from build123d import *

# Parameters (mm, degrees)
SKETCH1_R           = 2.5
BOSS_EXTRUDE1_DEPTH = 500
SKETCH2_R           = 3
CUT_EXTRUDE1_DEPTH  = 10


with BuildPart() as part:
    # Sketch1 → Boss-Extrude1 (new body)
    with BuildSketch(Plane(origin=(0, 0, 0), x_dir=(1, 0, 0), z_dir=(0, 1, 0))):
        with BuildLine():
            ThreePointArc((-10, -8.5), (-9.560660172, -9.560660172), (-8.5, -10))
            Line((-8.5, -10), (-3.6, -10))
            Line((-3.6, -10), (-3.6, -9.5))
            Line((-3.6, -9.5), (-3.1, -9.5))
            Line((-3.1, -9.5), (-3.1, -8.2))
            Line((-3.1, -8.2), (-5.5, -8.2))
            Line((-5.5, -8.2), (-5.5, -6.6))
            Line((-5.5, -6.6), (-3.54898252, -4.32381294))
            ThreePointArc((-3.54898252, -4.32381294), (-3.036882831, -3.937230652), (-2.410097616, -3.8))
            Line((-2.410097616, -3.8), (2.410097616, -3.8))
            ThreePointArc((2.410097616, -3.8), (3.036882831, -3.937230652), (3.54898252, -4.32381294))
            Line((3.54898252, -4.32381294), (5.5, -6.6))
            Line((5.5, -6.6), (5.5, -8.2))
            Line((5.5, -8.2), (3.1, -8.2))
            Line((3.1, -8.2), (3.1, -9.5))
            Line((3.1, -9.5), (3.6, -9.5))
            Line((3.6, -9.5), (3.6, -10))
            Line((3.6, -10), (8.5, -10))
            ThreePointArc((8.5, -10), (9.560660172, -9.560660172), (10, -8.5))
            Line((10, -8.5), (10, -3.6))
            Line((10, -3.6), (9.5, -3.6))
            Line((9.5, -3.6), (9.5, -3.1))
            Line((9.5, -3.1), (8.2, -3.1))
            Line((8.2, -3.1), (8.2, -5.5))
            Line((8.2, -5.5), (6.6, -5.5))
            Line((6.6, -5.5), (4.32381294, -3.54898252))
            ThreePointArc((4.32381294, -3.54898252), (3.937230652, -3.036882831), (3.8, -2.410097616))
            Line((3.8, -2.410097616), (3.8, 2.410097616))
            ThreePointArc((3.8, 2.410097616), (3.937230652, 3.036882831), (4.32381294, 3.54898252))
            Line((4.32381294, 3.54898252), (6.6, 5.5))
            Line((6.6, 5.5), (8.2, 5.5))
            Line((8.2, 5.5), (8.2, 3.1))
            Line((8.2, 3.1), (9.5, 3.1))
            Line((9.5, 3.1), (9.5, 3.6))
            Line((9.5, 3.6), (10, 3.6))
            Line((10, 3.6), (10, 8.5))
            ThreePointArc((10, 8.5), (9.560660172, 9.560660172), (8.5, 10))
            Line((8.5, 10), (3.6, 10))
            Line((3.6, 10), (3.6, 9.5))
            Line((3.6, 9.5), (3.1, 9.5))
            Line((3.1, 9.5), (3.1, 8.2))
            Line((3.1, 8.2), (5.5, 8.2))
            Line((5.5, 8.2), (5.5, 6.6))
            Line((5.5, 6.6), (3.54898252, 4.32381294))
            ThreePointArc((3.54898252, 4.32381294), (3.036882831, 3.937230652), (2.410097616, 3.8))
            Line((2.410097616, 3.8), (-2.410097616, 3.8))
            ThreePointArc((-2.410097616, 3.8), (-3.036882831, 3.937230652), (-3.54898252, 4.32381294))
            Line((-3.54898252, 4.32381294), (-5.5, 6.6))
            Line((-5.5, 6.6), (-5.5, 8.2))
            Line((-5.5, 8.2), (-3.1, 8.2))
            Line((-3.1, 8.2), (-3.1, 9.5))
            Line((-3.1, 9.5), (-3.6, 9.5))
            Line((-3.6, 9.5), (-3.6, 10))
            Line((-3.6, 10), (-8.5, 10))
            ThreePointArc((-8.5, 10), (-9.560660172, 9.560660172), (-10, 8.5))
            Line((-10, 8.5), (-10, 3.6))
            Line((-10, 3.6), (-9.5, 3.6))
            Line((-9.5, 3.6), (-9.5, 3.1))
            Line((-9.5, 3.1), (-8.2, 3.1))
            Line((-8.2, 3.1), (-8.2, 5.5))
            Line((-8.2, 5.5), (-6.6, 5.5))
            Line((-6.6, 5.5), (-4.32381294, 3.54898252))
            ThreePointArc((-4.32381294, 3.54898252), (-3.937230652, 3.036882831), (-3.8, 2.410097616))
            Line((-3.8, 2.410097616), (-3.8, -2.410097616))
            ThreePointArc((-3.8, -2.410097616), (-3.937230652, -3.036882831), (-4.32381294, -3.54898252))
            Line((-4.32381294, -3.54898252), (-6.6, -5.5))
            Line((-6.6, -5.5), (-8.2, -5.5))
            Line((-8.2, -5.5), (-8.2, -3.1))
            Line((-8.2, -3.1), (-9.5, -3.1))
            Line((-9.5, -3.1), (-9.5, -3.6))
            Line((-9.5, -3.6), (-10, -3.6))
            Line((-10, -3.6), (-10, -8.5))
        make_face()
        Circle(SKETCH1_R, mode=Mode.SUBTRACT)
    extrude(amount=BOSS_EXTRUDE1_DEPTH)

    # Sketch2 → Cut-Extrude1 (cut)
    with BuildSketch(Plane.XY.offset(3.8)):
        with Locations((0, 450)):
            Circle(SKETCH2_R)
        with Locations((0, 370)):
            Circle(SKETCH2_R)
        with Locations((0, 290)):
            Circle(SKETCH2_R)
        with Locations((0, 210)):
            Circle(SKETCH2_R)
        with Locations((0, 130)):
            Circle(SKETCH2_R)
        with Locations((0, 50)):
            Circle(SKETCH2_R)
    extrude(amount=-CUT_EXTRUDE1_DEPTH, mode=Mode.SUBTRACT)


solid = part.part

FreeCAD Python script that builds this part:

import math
import FreeCAD as App
import Part
import Sketcher

doc = App.newDocument("Part")
body = doc.addObject("PartDesign::Body", "Body")

# Sketch on XZ plane
sketch1 = body.newObject("Sketcher::SketchObject", "Sketch")
sketch1.AttachmentSupport = (doc.getObject("XZ_Plane"), [""])
sketch1.MapMode = "FlatFace"
sketch1.addGeometry([
    Part.ArcOfCircle(Part.Circle(App.Vector(-8.5, 8.5, 0), App.Vector(0, 0, 1), 1.5), math.radians(90), math.radians(180)),  # 0
    Part.LineSegment(App.Vector(-8.5, 10, 0), App.Vector(-3.6, 10, 0)),  # 1
    Part.LineSegment(App.Vector(-3.6, 10, 0), App.Vector(-3.6, 9.5, 0)),  # 2
    Part.LineSegment(App.Vector(-3.6, 9.5, 0), App.Vector(-3.1, 9.5, 0)),  # 3
    Part.LineSegment(App.Vector(-3.1, 9.5, 0), App.Vector(-3.1, 8.2, 0)),  # 4
    Part.LineSegment(App.Vector(-3.1, 8.2, 0), App.Vector(-5.5, 8.2, 0)),  # 5
    Part.LineSegment(App.Vector(-5.5, 8.2, 0), App.Vector(-5.5, 6.6, 0)),  # 6
    Part.LineSegment(App.Vector(-5.5, 6.6, 0), App.Vector(-3.5, 4.3, 0)),  # 7
    Part.ArcOfCircle(Part.Circle(App.Vector(-2.4, 5.3, 0), App.Vector(0, 0, 1), 1.5), math.radians(-139), math.radians(-90)),  # 8
    Part.LineSegment(App.Vector(-2.4, 3.8, 0), App.Vector(2.4, 3.8, 0)),  # 9
    Part.ArcOfCircle(Part.Circle(App.Vector(2.4, 5.3, 0), App.Vector(0, 0, 1), 1.5), math.radians(-90), math.radians(-41)),  # 10
    Part.LineSegment(App.Vector(3.5, 4.3, 0), App.Vector(5.5, 6.6, 0)),  # 11
    Part.LineSegment(App.Vector(5.5, 6.6, 0), App.Vector(5.5, 8.2, 0)),  # 12
    Part.LineSegment(App.Vector(5.5, 8.2, 0), App.Vector(3.1, 8.2, 0)),  # 13
    Part.LineSegment(App.Vector(3.1, 8.2, 0), App.Vector(3.1, 9.5, 0)),  # 14
    Part.LineSegment(App.Vector(3.1, 9.5, 0), App.Vector(3.6, 9.5, 0)),  # 15
    Part.LineSegment(App.Vector(3.6, 9.5, 0), App.Vector(3.6, 10, 0)),  # 16
    Part.LineSegment(App.Vector(3.6, 10, 0), App.Vector(8.5, 10, 0)),  # 17
    Part.ArcOfCircle(Part.Circle(App.Vector(8.5, 8.5, 0), App.Vector(0, 0, 1), 1.5), math.radians(0), math.radians(90)),  # 18
    Part.LineSegment(App.Vector(10, 8.5, 0), App.Vector(10, 3.6, 0)),  # 19
    Part.LineSegment(App.Vector(10, 3.6, 0), App.Vector(9.5, 3.6, 0)),  # 20
    Part.LineSegment(App.Vector(9.5, 3.6, 0), App.Vector(9.5, 3.1, 0)),  # 21
    Part.LineSegment(App.Vector(9.5, 3.1, 0), App.Vector(8.2, 3.1, 0)),  # 22
    Part.LineSegment(App.Vector(8.2, 3.1, 0), App.Vector(8.2, 5.5, 0)),  # 23
    Part.LineSegment(App.Vector(8.2, 5.5, 0), App.Vector(6.6, 5.5, 0)),  # 24
    Part.LineSegment(App.Vector(6.6, 5.5, 0), App.Vector(4.3, 3.5, 0)),  # 25
    Part.ArcOfCircle(Part.Circle(App.Vector(5.3, 2.4, 0), App.Vector(0, 0, 1), 1.5), math.radians(131), math.radians(180)),  # 26
    Part.LineSegment(App.Vector(3.8, 2.4, 0), App.Vector(3.8, -2.4, 0)),  # 27
    Part.ArcOfCircle(Part.Circle(App.Vector(5.3, -2.4, 0), App.Vector(0, 0, 1), 1.5), math.radians(180), math.radians(229)),  # 28
    Part.LineSegment(App.Vector(4.3, -3.5, 0), App.Vector(6.6, -5.5, 0)),  # 29
    Part.LineSegment(App.Vector(6.6, -5.5, 0), App.Vector(8.2, -5.5, 0)),  # 30
    Part.LineSegment(App.Vector(8.2, -5.5, 0), App.Vector(8.2, -3.1, 0)),  # 31
    Part.LineSegment(App.Vector(8.2, -3.1, 0), App.Vector(9.5, -3.1, 0)),  # 32
    Part.LineSegment(App.Vector(9.5, -3.1, 0), App.Vector(9.5, -3.6, 0)),  # 33
    Part.LineSegment(App.Vector(9.5, -3.6, 0), App.Vector(10, -3.6, 0)),  # 34
    Part.LineSegment(App.Vector(10, -3.6, 0), App.Vector(10, -8.5, 0)),  # 35
    Part.ArcOfCircle(Part.Circle(App.Vector(8.5, -8.5, 0), App.Vector(0, 0, 1), 1.5), math.radians(-90), math.radians(0)),  # 36
    Part.LineSegment(App.Vector(8.5, -10, 0), App.Vector(3.6, -10, 0)),  # 37
    Part.LineSegment(App.Vector(3.6, -10, 0), App.Vector(3.6, -9.5, 0)),  # 38
    Part.LineSegment(App.Vector(3.6, -9.5, 0), App.Vector(3.1, -9.5, 0)),  # 39
    Part.LineSegment(App.Vector(3.1, -9.5, 0), App.Vector(3.1, -8.2, 0)),  # 40
    Part.LineSegment(App.Vector(3.1, -8.2, 0), App.Vector(5.5, -8.2, 0)),  # 41
    Part.LineSegment(App.Vector(5.5, -8.2, 0), App.Vector(5.5, -6.6, 0)),  # 42
    Part.LineSegment(App.Vector(5.5, -6.6, 0), App.Vector(3.5, -4.3, 0)),  # 43
    Part.ArcOfCircle(Part.Circle(App.Vector(2.4, -5.3, 0), App.Vector(0, 0, 1), 1.5), math.radians(41), math.radians(90)),  # 44
    Part.LineSegment(App.Vector(2.4, -3.8, 0), App.Vector(-2.4, -3.8, 0)),  # 45
    Part.ArcOfCircle(Part.Circle(App.Vector(-2.4, -5.3, 0), App.Vector(0, 0, 1), 1.5), math.radians(90), math.radians(139)),  # 46
    Part.LineSegment(App.Vector(-3.5, -4.3, 0), App.Vector(-5.5, -6.6, 0)),  # 47
    Part.LineSegment(App.Vector(-5.5, -6.6, 0), App.Vector(-5.5, -8.2, 0)),  # 48
    Part.LineSegment(App.Vector(-5.5, -8.2, 0), App.Vector(-3.1, -8.2, 0)),  # 49
    Part.LineSegment(App.Vector(-3.1, -8.2, 0), App.Vector(-3.1, -9.5, 0)),  # 50
    Part.LineSegment(App.Vector(-3.1, -9.5, 0), App.Vector(-3.6, -9.5, 0)),  # 51
    Part.LineSegment(App.Vector(-3.6, -9.5, 0), App.Vector(-3.6, -10, 0)),  # 52
    Part.LineSegment(App.Vector(-3.6, -10, 0), App.Vector(-8.5, -10, 0)),  # 53
    Part.ArcOfCircle(Part.Circle(App.Vector(-8.5, -8.5, 0), App.Vector(0, 0, 1), 1.5), math.radians(180), math.radians(270)),  # 54
    Part.LineSegment(App.Vector(-10, -8.5, 0), App.Vector(-10, -3.6, 0)),  # 55
    Part.LineSegment(App.Vector(-10, -3.6, 0), App.Vector(-9.5, -3.6, 0)),  # 56
    Part.LineSegment(App.Vector(-9.5, -3.6, 0), App.Vector(-9.5, -3.1, 0)),  # 57
    Part.LineSegment(App.Vector(-9.5, -3.1, 0), App.Vector(-8.2, -3.1, 0)),  # 58
    Part.LineSegment(App.Vector(-8.2, -3.1, 0), App.Vector(-8.2, -5.5, 0)),  # 59
    Part.LineSegment(App.Vector(-8.2, -5.5, 0), App.Vector(-6.6, -5.5, 0)),  # 60
    Part.LineSegment(App.Vector(-6.6, -5.5, 0), App.Vector(-4.3, -3.5, 0)),  # 61
    Part.ArcOfCircle(Part.Circle(App.Vector(-5.3, -2.4, 0), App.Vector(0, 0, 1), 1.5), math.radians(-49), math.radians(0)),  # 62
    Part.LineSegment(App.Vector(-3.8, -2.4, 0), App.Vector(-3.8, 2.4, 0)),  # 63
    Part.ArcOfCircle(Part.Circle(App.Vector(-5.3, 2.4, 0), App.Vector(0, 0, 1), 1.5), math.radians(0), math.radians(49)),  # 64
    Part.LineSegment(App.Vector(-4.3, 3.5, 0), App.Vector(-6.6, 5.5, 0)),  # 65
    Part.LineSegment(App.Vector(-6.6, 5.5, 0), App.Vector(-8.2, 5.5, 0)),  # 66
    Part.LineSegment(App.Vector(-8.2, 5.5, 0), App.Vector(-8.2, 3.1, 0)),  # 67
    Part.LineSegment(App.Vector(-8.2, 3.1, 0), App.Vector(-9.5, 3.1, 0)),  # 68
    Part.LineSegment(App.Vector(-9.5, 3.1, 0), App.Vector(-9.5, 3.6, 0)),  # 69
    Part.LineSegment(App.Vector(-9.5, 3.6, 0), App.Vector(-10, 3.6, 0)),  # 70
    Part.LineSegment(App.Vector(-10, 3.6, 0), App.Vector(-10, 8.5, 0)),  # 71
    Part.Circle(App.Vector(0, 0, 0), App.Vector(0, 0, 1), 2.5),  # 72
], False)
sketch1.addConstraint([
    Sketcher.Constraint("Tangent", 0, 1, 1, 1),
    Sketcher.Constraint("Coincident", 1, 2, 2, 1),
    Sketcher.Constraint("Coincident", 2, 2, 3, 1),
    Sketcher.Constraint("Coincident", 3, 2, 4, 1),
    Sketcher.Constraint("Coincident", 4, 2, 5, 1),
    Sketcher.Constraint("Coincident", 5, 2, 6, 1),
    Sketcher.Constraint("Coincident", 6, 2, 7, 1),
    Sketcher.Constraint("Tangent", 7, 2, 8, 1),
    Sketcher.Constraint("Tangent", 8, 2, 9, 1),
    Sketcher.Constraint("Tangent", 9, 2, 10, 1),
    Sketcher.Constraint("Tangent", 10, 2, 11, 1),
    Sketcher.Constraint("Coincident", 11, 2, 12, 1),
    Sketcher.Constraint("Coincident", 12, 2, 13, 1),
    Sketcher.Constraint("Coincident", 13, 2, 14, 1),
    Sketcher.Constraint("Coincident", 14, 2, 15, 1),
    Sketcher.Constraint("Coincident", 15, 2, 16, 1),
    Sketcher.Constraint("Coincident", 16, 2, 17, 1),
    Sketcher.Constraint("Tangent", 17, 2, 18, 2),
    Sketcher.Constraint("Tangent", 18, 1, 19, 1),
    Sketcher.Constraint("Coincident", 19, 2, 20, 1),
    Sketcher.Constraint("Coincident", 20, 2, 21, 1),
    Sketcher.Constraint("Coincident", 21, 2, 22, 1),
    Sketcher.Constraint("Coincident", 22, 2, 23, 1),
    Sketcher.Constraint("Coincident", 23, 2, 24, 1),
    Sketcher.Constraint("Coincident", 24, 2, 25, 1),
    Sketcher.Constraint("Tangent", 25, 2, 26, 1),
    Sketcher.Constraint("Tangent", 26, 2, 27, 1),
    Sketcher.Constraint("Tangent", 27, 2, 28, 1),
    Sketcher.Constraint("Tangent", 28, 2, 29, 1),
    Sketcher.Constraint("Coincident", 29, 2, 30, 1),
    Sketcher.Constraint("Coincident", 30, 2, 31, 1),
    Sketcher.Constraint("Coincident", 31, 2, 32, 1),
    Sketcher.Constraint("Coincident", 32, 2, 33, 1),
    Sketcher.Constraint("Coincident", 33, 2, 34, 1),
    Sketcher.Constraint("Coincident", 34, 2, 35, 1),
    Sketcher.Constraint("Tangent", 35, 2, 36, 2),
    Sketcher.Constraint("Tangent", 36, 1, 37, 1),
    Sketcher.Constraint("Coincident", 37, 2, 38, 1),
    Sketcher.Constraint("Coincident", 38, 2, 39, 1),
    Sketcher.Constraint("Coincident", 39, 2, 40, 1),
    Sketcher.Constraint("Coincident", 40, 2, 41, 1),
    Sketcher.Constraint("Coincident", 41, 2, 42, 1),
    Sketcher.Constraint("Coincident", 42, 2, 43, 1),
    Sketcher.Constraint("Tangent", 43, 2, 44, 1),
    Sketcher.Constraint("Tangent", 44, 2, 45, 1),
    Sketcher.Constraint("Tangent", 45, 2, 46, 1),
    Sketcher.Constraint("Tangent", 46, 2, 47, 1),
    Sketcher.Constraint("Coincident", 47, 2, 48, 1),
    Sketcher.Constraint("Coincident", 48, 2, 49, 1),
    Sketcher.Constraint("Coincident", 49, 2, 50, 1),
    Sketcher.Constraint("Coincident", 50, 2, 51, 1),
    Sketcher.Constraint("Coincident", 51, 2, 52, 1),
    Sketcher.Constraint("Coincident", 52, 2, 53, 1),
    Sketcher.Constraint("Tangent", 53, 2, 54, 2),
    Sketcher.Constraint("Tangent", 54, 1, 55, 1),
    Sketcher.Constraint("Coincident", 55, 2, 56, 1),
    Sketcher.Constraint("Coincident", 56, 2, 57, 1),
    Sketcher.Constraint("Coincident", 57, 2, 58, 1),
    Sketcher.Constraint("Coincident", 58, 2, 59, 1),
    Sketcher.Constraint("Coincident", 59, 2, 60, 1),
    Sketcher.Constraint("Coincident", 60, 2, 61, 1),
    Sketcher.Constraint("Tangent", 61, 2, 62, 1),
    Sketcher.Constraint("Tangent", 62, 2, 63, 1),
    Sketcher.Constraint("Tangent", 63, 2, 64, 1),
    Sketcher.Constraint("Tangent", 64, 2, 65, 1),
    Sketcher.Constraint("Coincident", 65, 2, 66, 1),
    Sketcher.Constraint("Coincident", 66, 2, 67, 1),
    Sketcher.Constraint("Coincident", 67, 2, 68, 1),
    Sketcher.Constraint("Coincident", 68, 2, 69, 1),
    Sketcher.Constraint("Coincident", 69, 2, 70, 1),
    Sketcher.Constraint("Coincident", 70, 2, 71, 1),
    Sketcher.Constraint("Tangent", 71, 2, 0, 2),
    Sketcher.Constraint("Horizontal", 1),
    Sketcher.Constraint("Vertical", 2),
    Sketcher.Constraint("Horizontal", 3),
    Sketcher.Constraint("Vertical", 4),
    Sketcher.Constraint("Horizontal", 5),
    Sketcher.Constraint("Vertical", 6),
    Sketcher.Constraint("Horizontal", 9),
    Sketcher.Constraint("Vertical", 12),
    Sketcher.Constraint("Horizontal", 13),
    Sketcher.Constraint("Vertical", 14),
    Sketcher.Constraint("Horizontal", 15),
    Sketcher.Constraint("Vertical", 16),
    Sketcher.Constraint("Horizontal", 17),
    Sketcher.Constraint("Vertical", 19),
    Sketcher.Constraint("Horizontal", 20),
    Sketcher.Constraint("Vertical", 21),
    Sketcher.Constraint("Horizontal", 22),
    Sketcher.Constraint("Vertical", 23),
    Sketcher.Constraint("Horizontal", 24),
    Sketcher.Constraint("Vertical", 27),
    Sketcher.Constraint("Horizontal", 30),
    Sketcher.Constraint("Vertical", 31),
    Sketcher.Constraint("Horizontal", 32),
    Sketcher.Constraint("Vertical", 33),
    Sketcher.Constraint("Horizontal", 34),
    Sketcher.Constraint("Vertical", 35),
    Sketcher.Constraint("Horizontal", 37),
    Sketcher.Constraint("Vertical", 38),
    Sketcher.Constraint("Horizontal", 39),
    Sketcher.Constraint("Vertical", 40),
    Sketcher.Constraint("Horizontal", 41),
    Sketcher.Constraint("Vertical", 42),
    Sketcher.Constraint("Horizontal", 45),
    Sketcher.Constraint("Vertical", 48),
    Sketcher.Constraint("Horizontal", 49),
    Sketcher.Constraint("Vertical", 50),
    Sketcher.Constraint("Horizontal", 51),
    Sketcher.Constraint("Vertical", 52),
    Sketcher.Constraint("Horizontal", 53),
    Sketcher.Constraint("Vertical", 55),
    Sketcher.Constraint("Horizontal", 56),
    Sketcher.Constraint("Vertical", 57),
    Sketcher.Constraint("Horizontal", 58),
    Sketcher.Constraint("Vertical", 59),
    Sketcher.Constraint("Horizontal", 60),
    Sketcher.Constraint("Vertical", 63),
    Sketcher.Constraint("Horizontal", 66),
    Sketcher.Constraint("Vertical", 67),
    Sketcher.Constraint("Horizontal", 68),
    Sketcher.Constraint("Vertical", 69),
    Sketcher.Constraint("Horizontal", 70),
    Sketcher.Constraint("Vertical", 71),
    Sketcher.Constraint("Coincident", 72, 3, -1, 1),
    Sketcher.Constraint("Equal", 0, 8),
    Sketcher.Constraint("Equal", 8, 10),
    Sketcher.Constraint("Equal", 10, 18),
    Sketcher.Constraint("Equal", 18, 26),
    Sketcher.Constraint("Equal", 26, 28),
    Sketcher.Constraint("Equal", 28, 36),
    Sketcher.Constraint("Equal", 36, 44),
    Sketcher.Constraint("Equal", 44, 46),
    Sketcher.Constraint("Equal", 46, 54),
    Sketcher.Constraint("Equal", 54, 62),
    Sketcher.Constraint("Equal", 62, 64),
    Sketcher.Constraint("Symmetric", 0, 3, 36, 3, -1, 1),
    Sketcher.Constraint("Symmetric", 8, 3, 44, 3, -1, 1),
    Sketcher.Constraint("Symmetric", 18, 3, 54, 3, -1, 1),
    Sketcher.Constraint("Symmetric", 26, 3, 62, 3, -1, 1),
    Sketcher.Constraint("Symmetric", 2, 2, 38, 2, -1, 1),
    Sketcher.Constraint("Symmetric", 4, 2, 40, 2, -1, 1),
    Sketcher.Constraint("Symmetric", 6, 2, 42, 2, -1, 1),
    Sketcher.Constraint("Symmetric", 10, 2, 46, 2, -1, 1),
    Sketcher.Constraint("Symmetric", 12, 2, 48, 2, -1, 1),
    Sketcher.Constraint("Symmetric", 14, 2, 50, 2, -1, 1),
    Sketcher.Constraint("Symmetric", 20, 2, 56, 2, -1, 1),
    Sketcher.Constraint("Symmetric", 22, 2, 58, 2, -1, 1),
    Sketcher.Constraint("Symmetric", 24, 2, 60, 2, -1, 1),
    Sketcher.Constraint("Symmetric", 28, 2, 64, 2, -1, 1),
    Sketcher.Constraint("Symmetric", 30, 2, 66, 2, -1, 1),
    Sketcher.Constraint("Symmetric", 32, 2, 68, 2, -1, 1),
    Sketcher.Constraint("Symmetric", 0, 3, 18, 3, -2),
    Sketcher.Constraint("Symmetric", 7, 2, 10, 2, -2),
    Sketcher.Constraint("Symmetric", 5, 2, 12, 2, -2),
    Sketcher.Constraint("Symmetric", 3, 2, 14, 2, -2),
    Sketcher.Constraint("Symmetric", 33, 2, 56, 2, -2),
    Sketcher.Constraint("Symmetric", 31, 2, 58, 2, -2),
    Sketcher.Constraint("Symmetric", 29, 2, 60, 2, -2),
    Sketcher.Constraint("Perpendicular", 7, 25),
    Sketcher.Constraint("Perpendicular", 11, 29),
    Sketcher.Constraint("Horizontal", 20, 2, 69, 2),
    Sketcher.Constraint("Vertical", 16, 2, 37, 2),
    Sketcher.Constraint("Vertical", 2, 2, 51, 2),
    Sketcher.Constraint("Equal", 15, 20),
    Sketcher.Constraint("Equal", 70, 2),
    Sketcher.Constraint("Equal", 68, 4),
    Sketcher.Constraint("Equal", 66, 6),
    Sketcher.Constraint("Equal", 53, 19),
    Sketcher.Constraint("Equal", 16, 21),
    Sketcher.Constraint("Equal", 49, 23),
    Sketcher.Constraint("Equal", 45, 27),
    Sketcher.Constraint("Equal", 11, 25),
    Sketcher.Constraint("Diameter", 72, 5.0),
    Sketcher.Constraint("Radius", 0, 1.5),
    Sketcher.Constraint("DistanceX", 1, 1, 1, 2, 4.9),
    Sketcher.Constraint("DistanceX", 3, 1, 3, 2, 0.5),
    Sketcher.Constraint("DistanceX", 5, 2, 5, 1, 2.4),
    Sketcher.Constraint("DistanceX", 22, 2, 22, 1, 1.3),
    Sketcher.Constraint("DistanceX", 24, 2, 24, 1, 1.6),
    Sketcher.Constraint("DistanceY", -1, 1, 0, 1, 10.0),
    Sketcher.Constraint("DistanceY", -1, 1, 8, 3, 5.3),
    Sketcher.Constraint("DistanceX", 9, 1, 9, 2, 4.820195),
])
pad1 = body.newObject("PartDesign::Pad", "Pad")
pad1.Profile = sketch1
pad1.Length = 500
pad1.Reversed = True

# Sketch on XY plane
sketch2 = body.newObject("Sketcher::SketchObject", "Sketch001")
sketch2.AttachmentSupport = (doc.getObject("XY_Plane"), [""])
sketch2.MapMode = "FlatFace"
sketch2.AttachmentOffset = App.Placement(App.Vector(0, 0, 3.8), App.Rotation())
sketch2.addGeometry([
    Part.Circle(App.Vector(0, 450, 0), App.Vector(0, 0, 1), 3),  # 0
    Part.Circle(App.Vector(0, 370, 0), App.Vector(0, 0, 1), 3),  # 1
    Part.Circle(App.Vector(0, 290, 0), App.Vector(0, 0, 1), 3),  # 2
    Part.Circle(App.Vector(0, 210, 0), App.Vector(0, 0, 1), 3),  # 3
    Part.Circle(App.Vector(0, 130, 0), App.Vector(0, 0, 1), 3),  # 4
    Part.Circle(App.Vector(0, 50, 0), App.Vector(0, 0, 1), 3),  # 5
], False)
sketch2.addConstraint([
    Sketcher.Constraint("Equal", 0, 1),
    Sketcher.Constraint("Equal", 1, 2),
    Sketcher.Constraint("Equal", 2, 3),
    Sketcher.Constraint("Equal", 3, 4),
    Sketcher.Constraint("Equal", 4, 5),
    Sketcher.Constraint("PointOnObject", 0, 3, -2),
    Sketcher.Constraint("PointOnObject", 1, 3, -2),
    Sketcher.Constraint("PointOnObject", 2, 3, -2),
    Sketcher.Constraint("PointOnObject", 3, 3, -2),
    Sketcher.Constraint("PointOnObject", 4, 3, -2),
    Sketcher.Constraint("PointOnObject", 5, 3, -2),
    Sketcher.Constraint("Diameter", 0, 6.0),
    Sketcher.Constraint("DistanceY", -1, 1, 0, 3, 450.0),
    Sketcher.Constraint("DistanceY", -1, 1, 1, 3, 370.0),
    Sketcher.Constraint("DistanceY", -1, 1, 2, 3, 290.0),
    Sketcher.Constraint("DistanceY", -1, 1, 3, 3, 210.0),
    Sketcher.Constraint("DistanceY", -1, 1, 4, 3, 130.0),
    Sketcher.Constraint("DistanceY", -1, 1, 5, 3, 50.0),
])
pocket1 = body.newObject("PartDesign::Pocket", "Pocket")
pocket1.Profile = sketch2
pocket1.Length = 10

doc.recompute()
